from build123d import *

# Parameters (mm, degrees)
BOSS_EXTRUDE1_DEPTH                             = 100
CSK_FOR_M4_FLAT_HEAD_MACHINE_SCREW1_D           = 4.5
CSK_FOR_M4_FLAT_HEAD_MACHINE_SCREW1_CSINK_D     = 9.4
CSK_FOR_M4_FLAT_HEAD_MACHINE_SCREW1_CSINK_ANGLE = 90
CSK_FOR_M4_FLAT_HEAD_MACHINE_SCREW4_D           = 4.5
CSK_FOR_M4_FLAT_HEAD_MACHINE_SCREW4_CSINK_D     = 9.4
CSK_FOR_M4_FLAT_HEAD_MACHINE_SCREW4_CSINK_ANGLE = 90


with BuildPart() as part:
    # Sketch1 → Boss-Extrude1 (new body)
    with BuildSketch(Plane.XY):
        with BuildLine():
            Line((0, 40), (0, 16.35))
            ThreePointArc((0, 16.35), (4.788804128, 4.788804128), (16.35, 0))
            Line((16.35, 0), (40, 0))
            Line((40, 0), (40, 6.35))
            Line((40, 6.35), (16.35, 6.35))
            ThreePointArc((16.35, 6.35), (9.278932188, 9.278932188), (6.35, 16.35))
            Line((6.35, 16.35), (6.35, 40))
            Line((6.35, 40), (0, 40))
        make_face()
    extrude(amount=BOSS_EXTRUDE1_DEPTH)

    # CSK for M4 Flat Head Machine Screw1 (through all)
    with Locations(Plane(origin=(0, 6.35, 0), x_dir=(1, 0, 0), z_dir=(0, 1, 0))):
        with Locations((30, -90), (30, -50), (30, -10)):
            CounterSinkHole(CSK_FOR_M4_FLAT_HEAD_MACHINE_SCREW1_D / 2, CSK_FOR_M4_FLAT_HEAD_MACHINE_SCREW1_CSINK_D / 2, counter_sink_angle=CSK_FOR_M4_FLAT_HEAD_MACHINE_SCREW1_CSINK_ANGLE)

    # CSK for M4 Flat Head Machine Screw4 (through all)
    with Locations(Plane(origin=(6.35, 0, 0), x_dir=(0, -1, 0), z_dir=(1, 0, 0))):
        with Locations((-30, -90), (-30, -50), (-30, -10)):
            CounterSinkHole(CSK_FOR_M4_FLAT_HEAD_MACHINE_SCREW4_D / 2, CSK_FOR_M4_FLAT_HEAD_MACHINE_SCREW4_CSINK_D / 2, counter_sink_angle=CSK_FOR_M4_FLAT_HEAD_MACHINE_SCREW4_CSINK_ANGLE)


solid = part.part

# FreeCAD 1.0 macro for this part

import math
import FreeCAD as App
import Part
import Sketcher

V = App.Vector
Q = App.Units.Quantity

doc = App.newDocument("Part")
body = doc.addObject("PartDesign::Body", "Body")

# Sketch on XY plane
sketch1 = body.newObject("Sketcher::SketchObject", "Sketch")
sketch1.AttachmentSupport = (doc.getObject("XY_Plane"), [""])
sketch1.MapMode = "FlatFace"
sketch1.addGeometry([
    Part.LineSegment(V(0, 40, 0), V(0, 16, 0)),  # 0
    Part.ArcOfCircle(Part.Circle(V(16, 16, 0), V(0, 0, 1), 16), math.radians(-180), math.radians(-90)),  # 1
    Part.LineSegment(V(16, 0, 0), V(40, 0, 0)),  # 2
    Part.LineSegment(V(40, 0, 0), V(40, 6, 0)),  # 3
    Part.LineSegment(V(40, 6, 0), V(16, 6, 0)),  # 4
    Part.ArcOfCircle(Part.Circle(V(16, 16, 0), V(0, 0, 1), 10), math.radians(180), math.radians(270)),  # 5
    Part.LineSegment(V(6, 16, 0), V(6, 40, 0)),  # 6
    Part.LineSegment(V(6, 40, 0), V(0, 40, 0)),  # 7
], False)
sketch1.addConstraint([
    Sketcher.Constraint("Tangent", 0, 2, 1, 1),
    Sketcher.Constraint("Tangent", 1, 2, 2, 1),
    Sketcher.Constraint("Coincident", 2, 2, 3, 1),
    Sketcher.Constraint("Coincident", 3, 2, 4, 1),
    Sketcher.Constraint("Tangent", 4, 2, 5, 2),
    Sketcher.Constraint("Tangent", 5, 1, 6, 1),
    Sketcher.Constraint("Coincident", 6, 2, 7, 1),
    Sketcher.Constraint("Coincident", 7, 2, 0, 1),
    Sketcher.Constraint("Vertical", 0),
    Sketcher.Constraint("Horizontal", 2),
    Sketcher.Constraint("Vertical", 3),
    Sketcher.Constraint("Horizontal", 4),
    Sketcher.Constraint("Vertical", 6),
    Sketcher.Constraint("Horizontal", 7),
    Sketcher.Constraint("Coincident", 5, 3, 1, 3),
    Sketcher.Constraint("PointOnObject", 0, 2, -2),
    Sketcher.Constraint("PointOnObject", 1, 2, -1),
    Sketcher.Constraint("Equal", 4, 0),
    Sketcher.Constraint("Radius", 5, Q("10 mm")),
    Sketcher.Constraint("Radius", 1, Q("16.35 mm")),
    Sketcher.Constraint("DistanceX", -1, 1, 2, 2, Q("40 mm")),
])
pad1 = body.newObject("PartDesign::Pad", "Pad")
pad1.Profile = sketch1
pad1.Length = 100

# Sketch on XZ plane
sketch2 = body.newObject("Sketcher::SketchObject", "Sketch001")
sketch2.AttachmentSupport = (doc.getObject("XZ_Plane"), [""])
sketch2.MapMode = "FlatFace"
sketch2.AttachmentOffset = App.Placement(V(0, 0, -6.35), App.Rotation())
sketch2.addGeometry([
    Part.Circle(V(30, 90, 0), V(0, 0, 1), 2.2),
    Part.Circle(V(30, 50, 0), V(0, 0, 1), 2.2),
    Part.Circle(V(30, 10, 0), V(0, 0, 1), 2.2),
], False)
sketch2.addConstraint([
    Sketcher.Constraint("Equal", 0, 1),
    Sketcher.Constraint("Equal", 1, 2),
    Sketcher.Constraint("Vertical", 0, 3, 1, 3),
    Sketcher.Constraint("Vertical", 1, 3, 2, 3),
    Sketcher.Constraint("Diameter", 0, Q("4.5 mm")),
    Sketcher.Constraint("DistanceX", -1, 1, 0, 3, Q("30 mm")),
    Sketcher.Constraint("DistanceY", -1, 1, 0, 3, Q("90 mm")),
    Sketcher.Constraint("DistanceY", -1, 1, 1, 3, Q("50 mm")),
    Sketcher.Constraint("DistanceY", -1, 1, 2, 3, Q("10 mm")),
])
doc.recompute()
hole = body.newObject("PartDesign::Hole", "Hole")
hole.Profile = sketch2
hole.ThreadType = "None"
hole.Diameter = 4.5
hole.DepthType = "ThroughAll"
hole.HoleCutType = "Countersink"
hole.HoleCutDiameter = 9.4
hole.HoleCutCountersinkAngle = 90
hole.Reversed = True

# Sketch on YZ plane
sketch3 = body.newObject("Sketcher::SketchObject", "Sketch002")
sketch3.AttachmentSupport = (doc.getObject("YZ_Plane"), [""])
sketch3.MapMode = "FlatFace"
sketch3.AttachmentOffset = App.Placement(V(0, 0, 6.35), App.Rotation())
sketch3.addGeometry([
    Part.Circle(V(30, 90, 0), V(0, 0, 1), 2.2),
    Part.Circle(V(30, 50, 0), V(0, 0, 1), 2.2),
    Part.Circle(V(30, 10, 0), V(0, 0, 1), 2.2),
], False)
sketch3.addConstraint([
    Sketcher.Constraint("Equal", 0, 1),
    Sketcher.Constraint("Equal", 1, 2),
    Sketcher.Constraint("Vertical", 0, 3, 1, 3),
    Sketcher.Constraint("Vertical", 1, 3, 2, 3),
    Sketcher.Constraint("Diameter", 0, Q("4.5 mm")),
    Sketcher.Constraint("DistanceX", -1, 1, 0, 3, Q("30 mm")),
    Sketcher.Constraint("DistanceY", -1, 1, 0, 3, Q("90 mm")),
    Sketcher.Constraint("DistanceY", -1, 1, 1, 3, Q("50 mm")),
    Sketcher.Constraint("DistanceY", -1, 1, 2, 3, Q("10 mm")),
])
doc.recompute()
hole2 = body.newObject("PartDesign::Hole", "Hole001")
hole2.Profile = sketch3
hole2.ThreadType = "None"
hole2.Diameter = 4.5
hole2.DepthType = "ThroughAll"
hole2.HoleCutType = "Countersink"
hole2.HoleCutDiameter = 9.4
hole2.HoleCutCountersinkAngle = 90

doc.recompute()
